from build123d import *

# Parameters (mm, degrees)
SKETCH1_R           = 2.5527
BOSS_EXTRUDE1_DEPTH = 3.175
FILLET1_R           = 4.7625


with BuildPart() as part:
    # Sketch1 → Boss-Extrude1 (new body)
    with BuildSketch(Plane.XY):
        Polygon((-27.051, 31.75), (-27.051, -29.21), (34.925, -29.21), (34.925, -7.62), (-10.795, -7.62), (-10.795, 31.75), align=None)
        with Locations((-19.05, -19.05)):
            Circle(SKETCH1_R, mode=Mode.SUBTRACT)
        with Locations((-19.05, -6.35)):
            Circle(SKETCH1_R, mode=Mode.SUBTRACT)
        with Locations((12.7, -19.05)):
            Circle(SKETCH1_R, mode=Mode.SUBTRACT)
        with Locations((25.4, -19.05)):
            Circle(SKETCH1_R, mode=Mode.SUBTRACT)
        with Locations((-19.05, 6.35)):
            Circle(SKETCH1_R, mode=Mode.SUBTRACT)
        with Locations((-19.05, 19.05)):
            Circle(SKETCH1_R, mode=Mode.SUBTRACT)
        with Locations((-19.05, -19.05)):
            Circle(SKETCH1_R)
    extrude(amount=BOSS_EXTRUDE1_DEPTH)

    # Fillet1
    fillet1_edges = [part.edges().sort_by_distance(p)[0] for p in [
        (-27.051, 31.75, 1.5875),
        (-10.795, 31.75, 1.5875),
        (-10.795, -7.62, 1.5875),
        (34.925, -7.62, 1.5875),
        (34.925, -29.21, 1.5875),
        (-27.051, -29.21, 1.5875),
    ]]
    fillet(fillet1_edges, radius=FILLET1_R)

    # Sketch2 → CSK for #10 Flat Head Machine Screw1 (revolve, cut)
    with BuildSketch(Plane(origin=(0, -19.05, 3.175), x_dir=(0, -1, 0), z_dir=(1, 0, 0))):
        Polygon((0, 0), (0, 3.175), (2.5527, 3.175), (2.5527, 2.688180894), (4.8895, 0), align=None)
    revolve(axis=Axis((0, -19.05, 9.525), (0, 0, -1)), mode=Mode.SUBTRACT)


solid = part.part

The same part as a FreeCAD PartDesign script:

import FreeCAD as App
import Part
import Sketcher
from FreeCAD import Vector
Q = App.Units.Quantity


def edges_at(feature, points):
    """Names of the edges that pass closest to the given points."""
    edges = feature.Shape.Edges
    near = lambda p: min(range(len(edges)), key=lambda i: edges[i].distToShape(Part.Vertex(*p))[0])
    return sorted({f"Edge{near(p) + 1}" for p in points})


def add_polygon(sketch, points):
    """Adds a closed chain of lines whose ends are joined by coincident constraints."""
    first, n = sketch.GeometryCount, len(points)
    for a, b in zip(points, points[1:] + points[:1]):
        sketch.addGeometry(Part.LineSegment(App.Vector(*a, 0), App.Vector(*b, 0)), False)
    for i in range(n):
        sketch.addConstraint(Sketcher.Constraint("Coincident", first + i, 2, first + (i + 1) % n, 1))

doc = App.newDocument("Part")
body = doc.addObject("PartDesign::Body", "Body")

sketch1 = body.newObject("Sketcher::SketchObject", "Sketch")
sketch1.AttachmentSupport = (doc.getObject("XY_Plane"), [""])
sketch1.MapMode = "FlatFace"
add_polygon(sketch1, [(-27.1, 31.8), (-27.1, -29.2), (34.9, -29.2), (34.9, -7.6), (-10.8, -7.6), (-10.8, 31.8)])
sketch1.addGeometry(Part.Circle(Vector(-19.1, -6.3, 0), Vector(0, 0, 1), 2.6), False)
sketch1.addGeometry(Part.Circle(Vector(12.7, -19.1, 0), Vector(0, 0, 1), 2.6), False)
sketch1.addGeometry(Part.Circle(Vector(25.4, -19.1, 0), Vector(0, 0, 1), 2.6), False)
sketch1.addGeometry(Part.Circle(Vector(-19.1, 6.3, 0), Vector(0, 0, 1), 2.6), False)
sketch1.addGeometry(Part.Circle(Vector(-19.1, 19.1, 0), Vector(0, 0, 1), 2.6), False)
sketch1.addConstraint([
    Sketcher.Constraint("Vertical", 0),
    Sketcher.Constraint("Horizontal", 1),
    Sketcher.Constraint("Vertical", 2),
    Sketcher.Constraint("Horizontal", 3),
    Sketcher.Constraint("Vertical", 4),
    Sketcher.Constraint("Horizontal", 5),
    Sketcher.Constraint("Equal", 6, 7),
    Sketcher.Constraint("Equal", 7, 8),
    Sketcher.Constraint("Equal", 8, 9),
    Sketcher.Constraint("Equal", 9, 10),
    Sketcher.Constraint("Symmetric", 6, 3, 9, 3, -1),
    Sketcher.Constraint("Horizontal", 7, 3, 8, 3),
    Sketcher.Constraint("Vertical", 9, 3, 10, 3),
    Sketcher.Constraint("Diameter", 6, Q("0.201 in")),
    Sketcher.Constraint("DistanceX", 3, 2, 3, 1, Q("1.8 in")),
    Sketcher.Constraint("DistanceY", 0, 2, 0, 1, Q("2.4 in")),
    Sketcher.Constraint("DistanceX", -1, 1, 8, 3, Q("1 in")),
    Sketcher.Constraint("DistanceY", 7, 3, 9, 3, Q("1 in")),
    Sketcher.Constraint("DistanceY", 6, 3, 10, 3, Q("1 in")),
    Sketcher.Constraint("DistanceY", 9, 3, 4, 2, Q("1 in")),
    Sketcher.Constraint("DistanceX", 1, 1, 1, 2, Q("2.44 in")),
    Sketcher.Constraint("DistanceY", 2, 1, 2, 2, Q("0.85 in")),
    Sketcher.Constraint("DistanceX", -1, 1, 7, 3, Q("0.5 in")),
    Sketcher.Constraint("DistanceY", 2, 2, -1, 1, Q("0.3 in")),
    Sketcher.Constraint("DistanceX", 6, 3, -1, 1, Q("0.75 in")),
    Sketcher.Constraint("DistanceX", 0, 2, -1, 1, Q("1.065 in")),
])
pad1 = body.newObject("PartDesign::Pad", "Pad")
pad1.Profile = sketch1
pad1.Length = Q("0.125 in")
doc.recompute()

fillet = body.newObject("PartDesign::Fillet", "Fillet")
fillet.Base = (pad1, edges_at(pad1, [
    (-27.051, 31.75, 1.587),
    (-10.795, 31.75, 1.587),
    (-10.795, -7.62, 1.587),
    (34.925, -7.62, 1.587),
    (34.925, -29.21, 1.587),
    (-27.051, -29.21, 1.587),
]))
fillet.Radius = Q("0.1875 in")

sketch2 = body.newObject("Sketcher::SketchObject", "Sketch001")
sketch2.AttachmentSupport = (doc.getObject("YZ_Plane"), [""])
sketch2.MapMode = "FlatFace"
add_polygon(sketch2, [(-19.05, 0), (-19.05, 3.17), (-23.94, 3.17), (-21.6, 0.49), (-21.6, 0)])
sketch2.addGeometry(Part.LineSegment(Vector(-19.05, 3.17, 0), Vector(-19.05, 0, 0)), True)
sketch2.addConstraint([
    Sketcher.Constraint("Vertical", 0),
    Sketcher.Constraint("Horizontal", 1),
    Sketcher.Constraint("Vertical", 3),
    Sketcher.Constraint("Horizontal", 4),
    Sketcher.Constraint("Vertical", 5),
    Sketcher.Constraint("Coincident", 5, 1, 0, 2),
    Sketcher.Constraint("PointOnObject", 3, 2, -1),
    Sketcher.Constraint("PointOnObject", 5, 2, -1),
    Sketcher.Constraint("Angle", 2, Q("-49 deg")),
    Sketcher.Constraint("DistanceY", 0, 1, 0, 2, Q("0.125 in")),
    Sketcher.Constraint("DistanceX", 0, 2, -1, 1, Q("0.75 in")),
    Sketcher.Constraint("DistanceX", 1, 2, 1, 1, Q("0.1925 in")),
    Sketcher.Constraint("DistanceX", 4, 1, 4, 2, Q("0.1005 in")),
])
groove = body.newObject("PartDesign::Groove", "Groove")
groove.Profile = sketch2
groove.ReferenceAxis = (sketch2, ["Axis0"])
groove.Angle = 360

doc.recompute()
